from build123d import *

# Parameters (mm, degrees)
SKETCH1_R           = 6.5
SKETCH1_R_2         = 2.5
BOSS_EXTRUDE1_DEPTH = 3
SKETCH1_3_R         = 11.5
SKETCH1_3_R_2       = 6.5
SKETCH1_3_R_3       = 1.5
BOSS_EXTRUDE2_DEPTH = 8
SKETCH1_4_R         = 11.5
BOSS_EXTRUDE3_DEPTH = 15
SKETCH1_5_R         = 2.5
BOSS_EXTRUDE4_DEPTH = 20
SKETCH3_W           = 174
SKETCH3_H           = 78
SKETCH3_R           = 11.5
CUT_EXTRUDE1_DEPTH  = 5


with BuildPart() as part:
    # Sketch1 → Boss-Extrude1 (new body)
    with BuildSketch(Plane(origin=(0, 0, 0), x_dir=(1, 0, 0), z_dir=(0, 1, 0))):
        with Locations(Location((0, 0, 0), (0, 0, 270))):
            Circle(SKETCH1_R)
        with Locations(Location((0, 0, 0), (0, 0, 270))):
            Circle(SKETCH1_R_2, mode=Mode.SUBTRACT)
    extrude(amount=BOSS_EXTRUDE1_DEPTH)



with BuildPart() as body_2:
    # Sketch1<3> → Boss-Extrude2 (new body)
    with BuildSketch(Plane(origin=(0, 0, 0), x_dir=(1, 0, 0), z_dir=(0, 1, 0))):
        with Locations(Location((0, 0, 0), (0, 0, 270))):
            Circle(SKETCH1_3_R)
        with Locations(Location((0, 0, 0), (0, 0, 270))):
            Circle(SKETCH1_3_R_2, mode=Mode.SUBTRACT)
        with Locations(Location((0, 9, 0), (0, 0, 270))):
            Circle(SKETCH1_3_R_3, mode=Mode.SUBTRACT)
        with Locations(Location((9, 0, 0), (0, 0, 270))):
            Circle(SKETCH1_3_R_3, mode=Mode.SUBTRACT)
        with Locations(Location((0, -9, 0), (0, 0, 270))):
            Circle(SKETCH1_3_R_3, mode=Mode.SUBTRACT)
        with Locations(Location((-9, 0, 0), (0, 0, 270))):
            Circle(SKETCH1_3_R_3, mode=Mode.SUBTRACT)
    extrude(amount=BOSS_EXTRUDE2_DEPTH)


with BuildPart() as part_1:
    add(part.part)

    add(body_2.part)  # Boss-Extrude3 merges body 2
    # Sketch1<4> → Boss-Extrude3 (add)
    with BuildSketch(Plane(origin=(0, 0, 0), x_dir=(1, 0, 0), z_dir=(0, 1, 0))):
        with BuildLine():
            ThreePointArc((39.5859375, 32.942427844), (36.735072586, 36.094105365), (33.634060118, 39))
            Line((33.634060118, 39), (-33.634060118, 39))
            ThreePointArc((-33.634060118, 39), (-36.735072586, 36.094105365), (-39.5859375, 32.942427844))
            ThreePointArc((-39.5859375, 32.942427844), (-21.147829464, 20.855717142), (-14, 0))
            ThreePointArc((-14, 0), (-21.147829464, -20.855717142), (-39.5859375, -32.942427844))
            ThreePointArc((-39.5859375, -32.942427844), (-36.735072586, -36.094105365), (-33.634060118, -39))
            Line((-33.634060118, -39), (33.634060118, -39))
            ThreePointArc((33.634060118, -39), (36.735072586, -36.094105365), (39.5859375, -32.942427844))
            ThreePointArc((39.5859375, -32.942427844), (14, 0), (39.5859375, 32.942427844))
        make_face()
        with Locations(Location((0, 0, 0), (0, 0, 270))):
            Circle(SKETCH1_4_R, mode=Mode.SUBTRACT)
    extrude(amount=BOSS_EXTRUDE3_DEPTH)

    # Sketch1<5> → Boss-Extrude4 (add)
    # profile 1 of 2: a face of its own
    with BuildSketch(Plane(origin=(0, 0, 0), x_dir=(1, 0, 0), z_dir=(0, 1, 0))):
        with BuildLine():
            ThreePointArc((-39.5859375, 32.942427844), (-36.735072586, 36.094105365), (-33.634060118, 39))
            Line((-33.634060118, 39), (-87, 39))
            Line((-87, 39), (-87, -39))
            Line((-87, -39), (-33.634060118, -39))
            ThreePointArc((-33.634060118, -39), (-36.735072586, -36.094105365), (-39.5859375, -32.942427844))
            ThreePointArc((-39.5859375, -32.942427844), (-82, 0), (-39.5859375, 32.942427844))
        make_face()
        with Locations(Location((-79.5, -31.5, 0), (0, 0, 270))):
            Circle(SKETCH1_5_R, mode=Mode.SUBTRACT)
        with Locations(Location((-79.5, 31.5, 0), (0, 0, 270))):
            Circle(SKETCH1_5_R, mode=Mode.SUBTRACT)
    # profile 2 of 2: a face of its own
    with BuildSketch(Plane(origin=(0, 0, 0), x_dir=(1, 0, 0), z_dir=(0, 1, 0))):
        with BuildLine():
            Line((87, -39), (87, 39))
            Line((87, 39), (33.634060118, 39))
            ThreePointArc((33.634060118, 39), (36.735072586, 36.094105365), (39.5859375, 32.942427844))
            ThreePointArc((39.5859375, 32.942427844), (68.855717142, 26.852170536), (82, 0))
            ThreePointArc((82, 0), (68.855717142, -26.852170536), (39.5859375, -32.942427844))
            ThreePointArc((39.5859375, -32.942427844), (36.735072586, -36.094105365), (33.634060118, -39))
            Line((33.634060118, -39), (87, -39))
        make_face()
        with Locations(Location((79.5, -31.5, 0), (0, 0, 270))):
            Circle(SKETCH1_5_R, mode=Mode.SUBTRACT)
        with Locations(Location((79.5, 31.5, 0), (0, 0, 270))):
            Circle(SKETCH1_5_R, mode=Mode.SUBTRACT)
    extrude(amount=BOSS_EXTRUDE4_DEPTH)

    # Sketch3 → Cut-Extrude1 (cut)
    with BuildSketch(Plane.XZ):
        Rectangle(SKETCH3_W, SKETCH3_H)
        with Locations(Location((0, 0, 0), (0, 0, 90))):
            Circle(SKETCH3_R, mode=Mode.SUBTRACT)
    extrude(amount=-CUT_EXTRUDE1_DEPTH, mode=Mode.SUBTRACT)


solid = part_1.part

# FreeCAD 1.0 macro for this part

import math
import FreeCAD as App
import Part
import Sketcher
from FreeCAD import Vector
Q = App.Units.Quantity


def add_polygon(sketch, points):
    """Adds a closed chain of lines whose ends are joined by coincident constraints."""
    first, n = sketch.GeometryCount, len(points)
    for a, b in zip(points, points[1:] + points[:1]):
        sketch.addGeometry(Part.LineSegment(App.Vector(*a, 0), App.Vector(*b, 0)), False)
    for i in range(n):
        sketch.addConstraint(Sketcher.Constraint("Coincident", first + i, 2, first + (i + 1) % n, 1))

doc = App.newDocument("Part")
params = doc.addObject("Spreadsheet::Sheet", "Params")
for row, (alias, value) in enumerate([
    ("sketch1_diameter", "13 mm"),
    ("sketch1_diameter2", "5 mm"),
    ("pad1_length", "3 mm"),
    ("sketch2_diameter", "23 mm"),
    ("sketch2_diameter2", "3 mm"),
    ("sketch2_diameter3", "13 mm"),
    ("pad2_length", "8 mm"),
    ("sketch3_diameter", "23 mm"),
    ("sketch3_radius", "34 mm"),
    ("sketch3_radius2", "51.5 mm"),
    ("pad3_length", "15 mm"),
    ("sketch4_diameter", "5 mm"),
    ("sketch4_radius", "34 mm"),
    ("sketch4_radius2", "51.5 mm"),
    ("sketch4_height", "78 mm"),
    ("pad4_length", "20 mm"),
    ("sketch5_diameter", "23 mm"),
    ("sketch5_width", "174 mm"),
    ("sketch5_height", "78 mm"),
    ("pocket1_length", "5 mm"),
], start=1):
    params.set(f"A{row}", alias)
    params.set(f"B{row}", "=" + value)
    params.setAlias(f"B{row}", alias)

body = doc.addObject("PartDesign::Body", "Body")

# Sketch on XZ plane
sketch1 = body.newObject("Sketcher::SketchObject", "Sketch")
sketch1.AttachmentSupport = (doc.getObject("XZ_Plane"), [""])
sketch1.MapMode = "FlatFace"
sketch1.addGeometry([
    Part.Circle(Vector(0, 0, 0), Vector(0, 0, 1), 6.5),
    Part.Circle(Vector(0, 0, 0), Vector(0, 0, 1), 2.5),
], False)
sketch1.addConstraint([
    Sketcher.Constraint("Coincident", 0, 3, -1, 1),
    Sketcher.Constraint("Coincident", 1, 3, -1, 1),
    Sketcher.Constraint("Diameter", 0, Q("13 mm")),
    Sketcher.Constraint("Diameter", 1, Q("5 mm")),
])
sketch1.setExpression("Constraints[2]", "Params.sketch1_diameter")
sketch1.setExpression("Constraints[3]", "Params.sketch1_diameter2")
pad1 = body.newObject("PartDesign::Pad", "Pad")
pad1.Profile = sketch1
pad1.setExpression("Length", "Params.pad1_length")
pad1.Reversed = True
body2 = doc.addObject("PartDesign::Body", "Body001")

# Sketch on XZ plane
sketch2 = body2.newObject("Sketcher::SketchObject", "Sketch001")
sketch2.AttachmentSupport = (doc.getObject("XZ_Plane001"), [""])
sketch2.MapMode = "FlatFace"
sketch2.addGeometry([
    Part.Circle(Vector(0, 0, 0), Vector(0, 0, 1), 11.5),  # 0
    Part.Circle(Vector(0, -9, 0), Vector(0, 0, 1), 1.5),  # 1
    Part.Circle(Vector(-9, 0, 0), Vector(0, 0, 1), 1.5),  # 2
    Part.Circle(Vector(9, 0, 0), Vector(0, 0, 1), 1.5),  # 3
    Part.Circle(Vector(0, 0, 0), Vector(0, 0, 1), 6.5),  # 4
    Part.Circle(Vector(0, 9, 0), Vector(0, 0, 1), 1.5),  # 5
], False)
sketch2.addConstraint([
    Sketcher.Constraint("Coincident", 0, 3, -1, 1),
    Sketcher.Constraint("Coincident", 4, 3, -1, 1),
    Sketcher.Constraint("Equal", 1, 2),
    Sketcher.Constraint("Equal", 2, 3),
    Sketcher.Constraint("Equal", 3, 5),
    Sketcher.Constraint("Symmetric", 2, 3, 3, 3, -1, 1),
    Sketcher.Constraint("Symmetric", 1, 3, 5, 3, -1, 1),
    Sketcher.Constraint("PointOnObject", 1, 3, -2),
    Sketcher.Constraint("PointOnObject", 2, 3, -1),
    Sketcher.Constraint("Diameter", 0, Q("23 mm")),
    Sketcher.Constraint("Diameter", 1, Q("3 mm")),
    Sketcher.Constraint("Diameter", 4, Q("13 mm")),
    Sketcher.Constraint("DistanceY", 1, 3, -1, 1, Q("9 mm")),
    Sketcher.Constraint("DistanceX", 2, 3, -1, 1, Q("9 mm")),
])
sketch2.setExpression("Constraints[9]", "Params.sketch2_diameter")
sketch2.setExpression("Constraints[10]", "Params.sketch2_diameter2")
sketch2.setExpression("Constraints[11]", "Params.sketch2_diameter3")
pad2 = body2.newObject("PartDesign::Pad", "Pad001")
pad2.Profile = sketch2
pad2.setExpression("Length", "Params.pad2_length")
pad2.Reversed = True
doc.recompute()

boolean = body.newObject("PartDesign::Boolean", "Boolean")
boolean.Type = "Fuse"
boolean.addObjects([body2])

# Sketch on XZ plane
sketch3 = body.newObject("Sketcher::SketchObject", "Sketch002")
sketch3.AttachmentSupport = (doc.getObject("XZ_Plane"), [""])
sketch3.MapMode = "FlatFace"
sketch3.addGeometry([
    Part.ArcOfCircle(Part.Circle(Vector(0, 0, 0), Vector(0, 0, 1), 51.5), math.radians(-49.225128), math.radians(-39.766381)),  # 0
    Part.LineSegment(Vector(33.63406, -39, 0), Vector(-33.63406, -39, 0)),  # 1
    Part.ArcOfCircle(Part.Circle(Vector(0, 0, 0), Vector(0, 0, 1), 51.5), math.radians(-140.233619), math.radians(-130.774872)),  # 2
    Part.ArcOfCircle(Part.Circle(Vector(-48, 0, 0), Vector(0, 0, 1), 34), math.radians(-75.672006), math.radians(0)),  # 3
    Part.ArcOfCircle(Part.Circle(Vector(-48, 0, 0), Vector(0, 0, 1), 34), math.radians(0), math.radians(75.672006)),  # 4
    Part.ArcOfCircle(Part.Circle(Vector(0, 0, 0), Vector(0, 0, 1), 51.5), math.radians(130.774872), math.radians(140.233619)),  # 5
    Part.LineSegment(Vector(-33.63406, 39, 0), Vector(33.63406, 39, 0)),  # 6
    Part.ArcOfCircle(Part.Circle(Vector(0, 0, 0), Vector(0, 0, 1), 51.5), math.radians(39.766381), math.radians(49.225128)),  # 7
    Part.ArcOfCircle(Part.Circle(Vector(48, 0, 0), Vector(0, 0, 1), 34), math.radians(104.327994), math.radians(255.672006)),  # 8
    Part.Circle(Vector(0, 0, 0), Vector(0, 0, 1), 11.5),  # 9
], False)
sketch3.addConstraint([
    Sketcher.Constraint("Coincident", 0, 1, 1, 1),
    Sketcher.Constraint("Coincident", 1, 2, 2, 2),
    Sketcher.Constraint("Coincident", 2, 1, 3, 1),
    Sketcher.Constraint("Tangent", 3, 2, 4, 1),
    Sketcher.Constraint("Coincident", 4, 2, 5, 2),
    Sketcher.Constraint("Coincident", 5, 1, 6, 1),
    Sketcher.Constraint("Coincident", 6, 2, 7, 2),
    Sketcher.Constraint("Coincident", 7, 1, 8, 1),
    Sketcher.Constraint("Coincident", 8, 2, 0, 2),
    Sketcher.Constraint("Horizontal", 1),
    Sketcher.Constraint("Horizontal", 6),
    Sketcher.Constraint("Coincident", 0, 3, -1, 1),
    Sketcher.Constraint("Coincident", 2, 3, -1, 1),
    Sketcher.Constraint("Coincident", 5, 3, -1, 1),
    Sketcher.Constraint("Coincident", 7, 3, -1, 1),
    Sketcher.Constraint("Coincident", 9, 3, -1, 1),
    Sketcher.Constraint("Equal", 0, 2),
    Sketcher.Constraint("Equal", 3, 4),
    Sketcher.Constraint("Equal", 2, 5),
    Sketcher.Constraint("Equal", 5, 7),
    Sketcher.Constraint("Equal", 4, 8),
    Sketcher.Constraint("Symmetric", 3, 3, 8, 3, -1, 1),
    Sketcher.Constraint("PointOnObject", 3, 3, -1),
    Sketcher.Constraint("PointOnObject", 3, 2, -1),
    Sketcher.Constraint("Vertical", 1, 2, 5, 1),
    Sketcher.Constraint("Diameter", 9, Q("23 mm")),
    Sketcher.Constraint("Radius", 3, Q("34 mm")),
    Sketcher.Constraint("Radius", 0, Q("51.5 mm")),
    Sketcher.Constraint("DistanceX", 3, 3, -1, 1, Q("48 mm")),
    Sketcher.Constraint("DistanceY", 0, 1, -1, 1, Q("39 mm")),
])
sketch3.setExpression("Constraints[25]", "Params.sketch3_diameter")
sketch3.setExpression("Constraints[26]", "Params.sketch3_radius")
sketch3.setExpression("Constraints[27]", "Params.sketch3_radius2")
pad3 = body.newObject("PartDesign::Pad", "Pad002")
pad3.Profile = sketch3
pad3.setExpression("Length", "Params.pad3_length")
pad3.Reversed = True

# Sketch on XZ plane
sketch4 = body.newObject("Sketcher::SketchObject", "Sketch003")
sketch4.AttachmentSupport = (doc.getObject("XZ_Plane"), [""])
sketch4.MapMode = "FlatFace"
sketch4.addGeometry([
    Part.ArcOfCircle(Part.Circle(Vector(0, 0, 0), Vector(0, 0, 1), 51.5), math.radians(-140.233619), math.radians(-130.774872)),  # 0
    Part.LineSegment(Vector(-33.63406, -39, 0), Vector(-87, -39, 0)),  # 1
    Part.LineSegment(Vector(-87, -39, 0), Vector(-87, 39, 0)),  # 2
    Part.LineSegment(Vector(-87, 39, 0), Vector(-33.63406, 39, 0)),  # 3
    Part.ArcOfCircle(Part.Circle(Vector(0, 0, 0), Vector(0, 0, 1), 51.5), math.radians(130.774872), math.radians(140.233619)),  # 4
    Part.ArcOfCircle(Part.Circle(Vector(-48, 0, 0), Vector(0, 0, 1), 34), math.radians(75.672006), math.radians(284.327994)),  # 5
    Part.Circle(Vector(-79.5, 31.5, 0), Vector(0, 0, 1), 2.5),  # 6
    Part.Circle(Vector(-79.5, -31.5, 0), Vector(0, 0, 1), 2.5),  # 7
    Part.LineSegment(Vector(87, 39, 0), Vector(87, -39, 0)),  # 8
    Part.LineSegment(Vector(87, -39, 0), Vector(33.63406, -39, 0)),  # 9
    Part.ArcOfCircle(Part.Circle(Vector(0, 0, 0), Vector(0, 0, 1), 51.5), math.radians(-49.225128), math.radians(-39.766381)),  # 10
    Part.ArcOfCircle(Part.Circle(Vector(48, 0, 0), Vector(0, 0, 1), 34), math.radians(-104.327994), math.radians(0)),  # 11
    Part.ArcOfCircle(Part.Circle(Vector(48, 0, 0), Vector(0, 0, 1), 34), math.radians(0), math.radians(104.327994)),  # 12
    Part.ArcOfCircle(Part.Circle(Vector(0, 0, 0), Vector(0, 0, 1), 51.5), math.radians(39.766381), math.radians(49.225128)),  # 13
    Part.LineSegment(Vector(33.63406, 39, 0), Vector(87, 39, 0)),  # 14
    Part.Circle(Vector(79.5, 31.5, 0), Vector(0, 0, 1), 2.5),  # 15
    Part.Circle(Vector(79.5, -31.5, 0), Vector(0, 0, 1), 2.5),  # 16
], False)
sketch4.addConstraint([
    Sketcher.Constraint("Coincident", 0, 2, 1, 1),
    Sketcher.Constraint("Coincident", 1, 2, 2, 1),
    Sketcher.Constraint("Coincident", 2, 2, 3, 1),
    Sketcher.Constraint("Coincident", 3, 2, 4, 1),
    Sketcher.Constraint("Coincident", 4, 2, 5, 1),
    Sketcher.Constraint("Coincident", 5, 2, 0, 1),
    Sketcher.Constraint("Coincident", 8, 2, 9, 1),
    Sketcher.Constraint("Coincident", 9, 2, 10, 1),
    Sketcher.Constraint("Coincident", 10, 2, 11, 1),
    Sketcher.Constraint("Tangent", 11, 2, 12, 1),
    Sketcher.Constraint("Coincident", 12, 2, 13, 1),
    Sketcher.Constraint("Coincident", 13, 2, 14, 1),
    Sketcher.Constraint("Coincident", 14, 2, 8, 1),
    Sketcher.Constraint("Horizontal", 1),
    Sketcher.Constraint("Vertical", 2),
    Sketcher.Constraint("Horizontal", 3),
    Sketcher.Constraint("Vertical", 8),
    Sketcher.Constraint("Horizontal", 9),
    Sketcher.Constraint("Horizontal", 14),
    Sketcher.Constraint("Coincident", 0, 3, -1, 1),
    Sketcher.Constraint("Coincident", 4, 3, -1, 1),
    Sketcher.Constraint("Coincident", 10, 3, -1, 1),
    Sketcher.Constraint("Coincident", 13, 3, -1, 1),
    Sketcher.Constraint("Equal", 0, 4),
    Sketcher.Constraint("Equal", 6, 7),
    Sketcher.Constraint("Equal", 4, 10),
    Sketcher.Constraint("Equal", 5, 11),
    Sketcher.Constraint("Equal", 11, 12),
    Sketcher.Constraint("Equal", 10, 13),
    Sketcher.Constraint("Equal", 7, 15),
    Sketcher.Constraint("Equal", 15, 16),
    Sketcher.Constraint("Symmetric", 5, 3, 11, 3, -1, 1),
    Sketcher.Constraint("Symmetric", 7, 3, 15, 3, -1, 1),
    Sketcher.Constraint("Symmetric", 6, 3, 16, 3, -1, 1),
    Sketcher.Constraint("Symmetric", 2, 2, 8, 2, -1, 1),
    Sketcher.Constraint("Symmetric", 6, 3, 15, 3, -2),
    Sketcher.Constraint("PointOnObject", 5, 3, -1),
    Sketcher.Constraint("PointOnObject", 11, 2, -1),
    Sketcher.Constraint("Horizontal", 1, 2, 8, 2),
    Sketcher.Constraint("Horizontal", 3, 2, 13, 2),
    Sketcher.Constraint("Diameter", 6, Q("5 mm")),
    Sketcher.Constraint("Radius", 5, Q("34 mm")),
    Sketcher.Constraint("Radius", 0, Q("51.5 mm")),
    Sketcher.Constraint("DistanceY", 2, 1, 2, 2, Q("78 mm")),
    Sketcher.Constraint("DistanceX", 5, 3, -1, 1, Q("48 mm")),
    Sketcher.Constraint("DistanceX", 1, 2, -1, 1, Q("87 mm")),
    Sketcher.Constraint("DistanceY", 7, 3, 6, 3, Q("63 mm")),
    Sketcher.Constraint("DistanceX", 6, 3, -1, 1, Q("79.5 mm")),
])
sketch4.setExpression("Constraints[40]", "Params.sketch4_diameter")
sketch4.setExpression("Constraints[41]", "Params.sketch4_radius")
sketch4.setExpression("Constraints[42]", "Params.sketch4_radius2")
sketch4.setExpression("Constraints[43]", "Params.sketch4_height")
pad4 = body.newObject("PartDesign::Pad", "Pad003")
pad4.Profile = sketch4
pad4.setExpression("Length", "Params.pad4_length")
pad4.Reversed = True

# Sketch on XZ plane
sketch5 = body.newObject("Sketcher::SketchObject", "Sketch004")
sketch5.AttachmentSupport = (doc.getObject("XZ_Plane"), [""])
sketch5.MapMode = "FlatFace"
add_polygon(sketch5, [(-87, 39), (-87, -39), (87, -39), (87, 39)])  # lines 0-3
sketch5.addGeometry(Part.Circle(Vector(0, 0, 0), Vector(0, 0, 1), 11.5), False)  # 4
sketch5.addConstraint([
    Sketcher.Constraint("Vertical", 0),
    Sketcher.Constraint("Horizontal", 1),
    Sketcher.Constraint("Vertical", 2),
    Sketcher.Constraint("Horizontal", 3),
    Sketcher.Constraint("Coincident", 4, 3, -1, 1),
    Sketcher.Constraint("Symmetric", 0, 2, 2, 2, -1, 1),
    Sketcher.Constraint("Diameter", 4, Q("23 mm")),
    Sketcher.Constraint("DistanceX", 1, 1, 1, 2, Q("174 mm")),
    Sketcher.Constraint("DistanceY", 0, 2, 0, 1, Q("78 mm")),
])
sketch5.setExpression("Constraints[10]", "Params.sketch5_diameter")
sketch5.setExpression("Constraints[11]", "Params.sketch5_width")
sketch5.setExpression("Constraints[12]", "Params.sketch5_height")
pocket1 = body.newObject("PartDesign::Pocket", "Pocket")
pocket1.Profile = sketch5
pocket1.setExpression("Length", "Params.pocket1_length")

doc.recompute()
